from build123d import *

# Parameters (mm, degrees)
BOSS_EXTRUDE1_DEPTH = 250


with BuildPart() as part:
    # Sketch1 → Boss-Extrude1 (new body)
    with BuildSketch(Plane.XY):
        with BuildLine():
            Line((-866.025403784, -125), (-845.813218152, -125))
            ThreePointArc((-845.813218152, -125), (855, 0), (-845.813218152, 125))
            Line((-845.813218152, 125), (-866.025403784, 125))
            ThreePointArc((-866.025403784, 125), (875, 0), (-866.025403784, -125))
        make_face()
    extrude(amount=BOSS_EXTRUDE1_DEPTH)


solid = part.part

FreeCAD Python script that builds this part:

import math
import FreeCAD as App
import Part
import Sketcher

V = App.Vector

doc = App.newDocument("Part")
body = doc.addObject("PartDesign::Body", "Body")

sketch1 = body.newObject("Sketcher::SketchObject", "Sketch")
sketch1.AttachmentSupport = (doc.getObject("XY_Plane"), [""])
sketch1.MapMode = "FlatFace"
sketch1.addGeometry([
    Part.LineSegment(V(-846, -125, 0), V(-866, -125, 0)),
    Part.ArcOfCircle(Part.Circle(V(0, 0, 0), V(0, 0, 1), 875), math.radians(-172), math.radians(172)),
    Part.LineSegment(V(-866, 125, 0), V(-846, 125, 0)),
    Part.ArcOfCircle(Part.Circle(V(0, 0, 0), V(0, 0, 1), 855), math.radians(-172), math.radians(172)),
], False)
sketch1.addConstraint([
    Sketcher.Constraint("Coincident", 0, 2, 1, 1),
    Sketcher.Constraint("Coincident", 1, 2, 2, 1),
    Sketcher.Constraint("Coincident", 2, 2, 3, 2),
    Sketcher.Constraint("Coincident", 3, 1, 0, 1),
    Sketcher.Constraint("Horizontal", 0),
    Sketcher.Constraint("Horizontal", 2),
    Sketcher.Constraint("Coincident", 1, 3, -1, 1),
    Sketcher.Constraint("Coincident", 3, 3, -1, 1),
    Sketcher.Constraint("Radius", 1, 875.0),
    Sketcher.Constraint("Radius", 3, 855.0),
    Sketcher.Constraint("DistanceY", 0, 2, -1, 1, 125.0),
    Sketcher.Constraint("DistanceY", -1, 1, 2, 2, 125.0),
])
pad1 = body.newObject("PartDesign::Pad", "Pad")
pad1.Profile = sketch1
pad1.Length = 250

doc.recompute()
